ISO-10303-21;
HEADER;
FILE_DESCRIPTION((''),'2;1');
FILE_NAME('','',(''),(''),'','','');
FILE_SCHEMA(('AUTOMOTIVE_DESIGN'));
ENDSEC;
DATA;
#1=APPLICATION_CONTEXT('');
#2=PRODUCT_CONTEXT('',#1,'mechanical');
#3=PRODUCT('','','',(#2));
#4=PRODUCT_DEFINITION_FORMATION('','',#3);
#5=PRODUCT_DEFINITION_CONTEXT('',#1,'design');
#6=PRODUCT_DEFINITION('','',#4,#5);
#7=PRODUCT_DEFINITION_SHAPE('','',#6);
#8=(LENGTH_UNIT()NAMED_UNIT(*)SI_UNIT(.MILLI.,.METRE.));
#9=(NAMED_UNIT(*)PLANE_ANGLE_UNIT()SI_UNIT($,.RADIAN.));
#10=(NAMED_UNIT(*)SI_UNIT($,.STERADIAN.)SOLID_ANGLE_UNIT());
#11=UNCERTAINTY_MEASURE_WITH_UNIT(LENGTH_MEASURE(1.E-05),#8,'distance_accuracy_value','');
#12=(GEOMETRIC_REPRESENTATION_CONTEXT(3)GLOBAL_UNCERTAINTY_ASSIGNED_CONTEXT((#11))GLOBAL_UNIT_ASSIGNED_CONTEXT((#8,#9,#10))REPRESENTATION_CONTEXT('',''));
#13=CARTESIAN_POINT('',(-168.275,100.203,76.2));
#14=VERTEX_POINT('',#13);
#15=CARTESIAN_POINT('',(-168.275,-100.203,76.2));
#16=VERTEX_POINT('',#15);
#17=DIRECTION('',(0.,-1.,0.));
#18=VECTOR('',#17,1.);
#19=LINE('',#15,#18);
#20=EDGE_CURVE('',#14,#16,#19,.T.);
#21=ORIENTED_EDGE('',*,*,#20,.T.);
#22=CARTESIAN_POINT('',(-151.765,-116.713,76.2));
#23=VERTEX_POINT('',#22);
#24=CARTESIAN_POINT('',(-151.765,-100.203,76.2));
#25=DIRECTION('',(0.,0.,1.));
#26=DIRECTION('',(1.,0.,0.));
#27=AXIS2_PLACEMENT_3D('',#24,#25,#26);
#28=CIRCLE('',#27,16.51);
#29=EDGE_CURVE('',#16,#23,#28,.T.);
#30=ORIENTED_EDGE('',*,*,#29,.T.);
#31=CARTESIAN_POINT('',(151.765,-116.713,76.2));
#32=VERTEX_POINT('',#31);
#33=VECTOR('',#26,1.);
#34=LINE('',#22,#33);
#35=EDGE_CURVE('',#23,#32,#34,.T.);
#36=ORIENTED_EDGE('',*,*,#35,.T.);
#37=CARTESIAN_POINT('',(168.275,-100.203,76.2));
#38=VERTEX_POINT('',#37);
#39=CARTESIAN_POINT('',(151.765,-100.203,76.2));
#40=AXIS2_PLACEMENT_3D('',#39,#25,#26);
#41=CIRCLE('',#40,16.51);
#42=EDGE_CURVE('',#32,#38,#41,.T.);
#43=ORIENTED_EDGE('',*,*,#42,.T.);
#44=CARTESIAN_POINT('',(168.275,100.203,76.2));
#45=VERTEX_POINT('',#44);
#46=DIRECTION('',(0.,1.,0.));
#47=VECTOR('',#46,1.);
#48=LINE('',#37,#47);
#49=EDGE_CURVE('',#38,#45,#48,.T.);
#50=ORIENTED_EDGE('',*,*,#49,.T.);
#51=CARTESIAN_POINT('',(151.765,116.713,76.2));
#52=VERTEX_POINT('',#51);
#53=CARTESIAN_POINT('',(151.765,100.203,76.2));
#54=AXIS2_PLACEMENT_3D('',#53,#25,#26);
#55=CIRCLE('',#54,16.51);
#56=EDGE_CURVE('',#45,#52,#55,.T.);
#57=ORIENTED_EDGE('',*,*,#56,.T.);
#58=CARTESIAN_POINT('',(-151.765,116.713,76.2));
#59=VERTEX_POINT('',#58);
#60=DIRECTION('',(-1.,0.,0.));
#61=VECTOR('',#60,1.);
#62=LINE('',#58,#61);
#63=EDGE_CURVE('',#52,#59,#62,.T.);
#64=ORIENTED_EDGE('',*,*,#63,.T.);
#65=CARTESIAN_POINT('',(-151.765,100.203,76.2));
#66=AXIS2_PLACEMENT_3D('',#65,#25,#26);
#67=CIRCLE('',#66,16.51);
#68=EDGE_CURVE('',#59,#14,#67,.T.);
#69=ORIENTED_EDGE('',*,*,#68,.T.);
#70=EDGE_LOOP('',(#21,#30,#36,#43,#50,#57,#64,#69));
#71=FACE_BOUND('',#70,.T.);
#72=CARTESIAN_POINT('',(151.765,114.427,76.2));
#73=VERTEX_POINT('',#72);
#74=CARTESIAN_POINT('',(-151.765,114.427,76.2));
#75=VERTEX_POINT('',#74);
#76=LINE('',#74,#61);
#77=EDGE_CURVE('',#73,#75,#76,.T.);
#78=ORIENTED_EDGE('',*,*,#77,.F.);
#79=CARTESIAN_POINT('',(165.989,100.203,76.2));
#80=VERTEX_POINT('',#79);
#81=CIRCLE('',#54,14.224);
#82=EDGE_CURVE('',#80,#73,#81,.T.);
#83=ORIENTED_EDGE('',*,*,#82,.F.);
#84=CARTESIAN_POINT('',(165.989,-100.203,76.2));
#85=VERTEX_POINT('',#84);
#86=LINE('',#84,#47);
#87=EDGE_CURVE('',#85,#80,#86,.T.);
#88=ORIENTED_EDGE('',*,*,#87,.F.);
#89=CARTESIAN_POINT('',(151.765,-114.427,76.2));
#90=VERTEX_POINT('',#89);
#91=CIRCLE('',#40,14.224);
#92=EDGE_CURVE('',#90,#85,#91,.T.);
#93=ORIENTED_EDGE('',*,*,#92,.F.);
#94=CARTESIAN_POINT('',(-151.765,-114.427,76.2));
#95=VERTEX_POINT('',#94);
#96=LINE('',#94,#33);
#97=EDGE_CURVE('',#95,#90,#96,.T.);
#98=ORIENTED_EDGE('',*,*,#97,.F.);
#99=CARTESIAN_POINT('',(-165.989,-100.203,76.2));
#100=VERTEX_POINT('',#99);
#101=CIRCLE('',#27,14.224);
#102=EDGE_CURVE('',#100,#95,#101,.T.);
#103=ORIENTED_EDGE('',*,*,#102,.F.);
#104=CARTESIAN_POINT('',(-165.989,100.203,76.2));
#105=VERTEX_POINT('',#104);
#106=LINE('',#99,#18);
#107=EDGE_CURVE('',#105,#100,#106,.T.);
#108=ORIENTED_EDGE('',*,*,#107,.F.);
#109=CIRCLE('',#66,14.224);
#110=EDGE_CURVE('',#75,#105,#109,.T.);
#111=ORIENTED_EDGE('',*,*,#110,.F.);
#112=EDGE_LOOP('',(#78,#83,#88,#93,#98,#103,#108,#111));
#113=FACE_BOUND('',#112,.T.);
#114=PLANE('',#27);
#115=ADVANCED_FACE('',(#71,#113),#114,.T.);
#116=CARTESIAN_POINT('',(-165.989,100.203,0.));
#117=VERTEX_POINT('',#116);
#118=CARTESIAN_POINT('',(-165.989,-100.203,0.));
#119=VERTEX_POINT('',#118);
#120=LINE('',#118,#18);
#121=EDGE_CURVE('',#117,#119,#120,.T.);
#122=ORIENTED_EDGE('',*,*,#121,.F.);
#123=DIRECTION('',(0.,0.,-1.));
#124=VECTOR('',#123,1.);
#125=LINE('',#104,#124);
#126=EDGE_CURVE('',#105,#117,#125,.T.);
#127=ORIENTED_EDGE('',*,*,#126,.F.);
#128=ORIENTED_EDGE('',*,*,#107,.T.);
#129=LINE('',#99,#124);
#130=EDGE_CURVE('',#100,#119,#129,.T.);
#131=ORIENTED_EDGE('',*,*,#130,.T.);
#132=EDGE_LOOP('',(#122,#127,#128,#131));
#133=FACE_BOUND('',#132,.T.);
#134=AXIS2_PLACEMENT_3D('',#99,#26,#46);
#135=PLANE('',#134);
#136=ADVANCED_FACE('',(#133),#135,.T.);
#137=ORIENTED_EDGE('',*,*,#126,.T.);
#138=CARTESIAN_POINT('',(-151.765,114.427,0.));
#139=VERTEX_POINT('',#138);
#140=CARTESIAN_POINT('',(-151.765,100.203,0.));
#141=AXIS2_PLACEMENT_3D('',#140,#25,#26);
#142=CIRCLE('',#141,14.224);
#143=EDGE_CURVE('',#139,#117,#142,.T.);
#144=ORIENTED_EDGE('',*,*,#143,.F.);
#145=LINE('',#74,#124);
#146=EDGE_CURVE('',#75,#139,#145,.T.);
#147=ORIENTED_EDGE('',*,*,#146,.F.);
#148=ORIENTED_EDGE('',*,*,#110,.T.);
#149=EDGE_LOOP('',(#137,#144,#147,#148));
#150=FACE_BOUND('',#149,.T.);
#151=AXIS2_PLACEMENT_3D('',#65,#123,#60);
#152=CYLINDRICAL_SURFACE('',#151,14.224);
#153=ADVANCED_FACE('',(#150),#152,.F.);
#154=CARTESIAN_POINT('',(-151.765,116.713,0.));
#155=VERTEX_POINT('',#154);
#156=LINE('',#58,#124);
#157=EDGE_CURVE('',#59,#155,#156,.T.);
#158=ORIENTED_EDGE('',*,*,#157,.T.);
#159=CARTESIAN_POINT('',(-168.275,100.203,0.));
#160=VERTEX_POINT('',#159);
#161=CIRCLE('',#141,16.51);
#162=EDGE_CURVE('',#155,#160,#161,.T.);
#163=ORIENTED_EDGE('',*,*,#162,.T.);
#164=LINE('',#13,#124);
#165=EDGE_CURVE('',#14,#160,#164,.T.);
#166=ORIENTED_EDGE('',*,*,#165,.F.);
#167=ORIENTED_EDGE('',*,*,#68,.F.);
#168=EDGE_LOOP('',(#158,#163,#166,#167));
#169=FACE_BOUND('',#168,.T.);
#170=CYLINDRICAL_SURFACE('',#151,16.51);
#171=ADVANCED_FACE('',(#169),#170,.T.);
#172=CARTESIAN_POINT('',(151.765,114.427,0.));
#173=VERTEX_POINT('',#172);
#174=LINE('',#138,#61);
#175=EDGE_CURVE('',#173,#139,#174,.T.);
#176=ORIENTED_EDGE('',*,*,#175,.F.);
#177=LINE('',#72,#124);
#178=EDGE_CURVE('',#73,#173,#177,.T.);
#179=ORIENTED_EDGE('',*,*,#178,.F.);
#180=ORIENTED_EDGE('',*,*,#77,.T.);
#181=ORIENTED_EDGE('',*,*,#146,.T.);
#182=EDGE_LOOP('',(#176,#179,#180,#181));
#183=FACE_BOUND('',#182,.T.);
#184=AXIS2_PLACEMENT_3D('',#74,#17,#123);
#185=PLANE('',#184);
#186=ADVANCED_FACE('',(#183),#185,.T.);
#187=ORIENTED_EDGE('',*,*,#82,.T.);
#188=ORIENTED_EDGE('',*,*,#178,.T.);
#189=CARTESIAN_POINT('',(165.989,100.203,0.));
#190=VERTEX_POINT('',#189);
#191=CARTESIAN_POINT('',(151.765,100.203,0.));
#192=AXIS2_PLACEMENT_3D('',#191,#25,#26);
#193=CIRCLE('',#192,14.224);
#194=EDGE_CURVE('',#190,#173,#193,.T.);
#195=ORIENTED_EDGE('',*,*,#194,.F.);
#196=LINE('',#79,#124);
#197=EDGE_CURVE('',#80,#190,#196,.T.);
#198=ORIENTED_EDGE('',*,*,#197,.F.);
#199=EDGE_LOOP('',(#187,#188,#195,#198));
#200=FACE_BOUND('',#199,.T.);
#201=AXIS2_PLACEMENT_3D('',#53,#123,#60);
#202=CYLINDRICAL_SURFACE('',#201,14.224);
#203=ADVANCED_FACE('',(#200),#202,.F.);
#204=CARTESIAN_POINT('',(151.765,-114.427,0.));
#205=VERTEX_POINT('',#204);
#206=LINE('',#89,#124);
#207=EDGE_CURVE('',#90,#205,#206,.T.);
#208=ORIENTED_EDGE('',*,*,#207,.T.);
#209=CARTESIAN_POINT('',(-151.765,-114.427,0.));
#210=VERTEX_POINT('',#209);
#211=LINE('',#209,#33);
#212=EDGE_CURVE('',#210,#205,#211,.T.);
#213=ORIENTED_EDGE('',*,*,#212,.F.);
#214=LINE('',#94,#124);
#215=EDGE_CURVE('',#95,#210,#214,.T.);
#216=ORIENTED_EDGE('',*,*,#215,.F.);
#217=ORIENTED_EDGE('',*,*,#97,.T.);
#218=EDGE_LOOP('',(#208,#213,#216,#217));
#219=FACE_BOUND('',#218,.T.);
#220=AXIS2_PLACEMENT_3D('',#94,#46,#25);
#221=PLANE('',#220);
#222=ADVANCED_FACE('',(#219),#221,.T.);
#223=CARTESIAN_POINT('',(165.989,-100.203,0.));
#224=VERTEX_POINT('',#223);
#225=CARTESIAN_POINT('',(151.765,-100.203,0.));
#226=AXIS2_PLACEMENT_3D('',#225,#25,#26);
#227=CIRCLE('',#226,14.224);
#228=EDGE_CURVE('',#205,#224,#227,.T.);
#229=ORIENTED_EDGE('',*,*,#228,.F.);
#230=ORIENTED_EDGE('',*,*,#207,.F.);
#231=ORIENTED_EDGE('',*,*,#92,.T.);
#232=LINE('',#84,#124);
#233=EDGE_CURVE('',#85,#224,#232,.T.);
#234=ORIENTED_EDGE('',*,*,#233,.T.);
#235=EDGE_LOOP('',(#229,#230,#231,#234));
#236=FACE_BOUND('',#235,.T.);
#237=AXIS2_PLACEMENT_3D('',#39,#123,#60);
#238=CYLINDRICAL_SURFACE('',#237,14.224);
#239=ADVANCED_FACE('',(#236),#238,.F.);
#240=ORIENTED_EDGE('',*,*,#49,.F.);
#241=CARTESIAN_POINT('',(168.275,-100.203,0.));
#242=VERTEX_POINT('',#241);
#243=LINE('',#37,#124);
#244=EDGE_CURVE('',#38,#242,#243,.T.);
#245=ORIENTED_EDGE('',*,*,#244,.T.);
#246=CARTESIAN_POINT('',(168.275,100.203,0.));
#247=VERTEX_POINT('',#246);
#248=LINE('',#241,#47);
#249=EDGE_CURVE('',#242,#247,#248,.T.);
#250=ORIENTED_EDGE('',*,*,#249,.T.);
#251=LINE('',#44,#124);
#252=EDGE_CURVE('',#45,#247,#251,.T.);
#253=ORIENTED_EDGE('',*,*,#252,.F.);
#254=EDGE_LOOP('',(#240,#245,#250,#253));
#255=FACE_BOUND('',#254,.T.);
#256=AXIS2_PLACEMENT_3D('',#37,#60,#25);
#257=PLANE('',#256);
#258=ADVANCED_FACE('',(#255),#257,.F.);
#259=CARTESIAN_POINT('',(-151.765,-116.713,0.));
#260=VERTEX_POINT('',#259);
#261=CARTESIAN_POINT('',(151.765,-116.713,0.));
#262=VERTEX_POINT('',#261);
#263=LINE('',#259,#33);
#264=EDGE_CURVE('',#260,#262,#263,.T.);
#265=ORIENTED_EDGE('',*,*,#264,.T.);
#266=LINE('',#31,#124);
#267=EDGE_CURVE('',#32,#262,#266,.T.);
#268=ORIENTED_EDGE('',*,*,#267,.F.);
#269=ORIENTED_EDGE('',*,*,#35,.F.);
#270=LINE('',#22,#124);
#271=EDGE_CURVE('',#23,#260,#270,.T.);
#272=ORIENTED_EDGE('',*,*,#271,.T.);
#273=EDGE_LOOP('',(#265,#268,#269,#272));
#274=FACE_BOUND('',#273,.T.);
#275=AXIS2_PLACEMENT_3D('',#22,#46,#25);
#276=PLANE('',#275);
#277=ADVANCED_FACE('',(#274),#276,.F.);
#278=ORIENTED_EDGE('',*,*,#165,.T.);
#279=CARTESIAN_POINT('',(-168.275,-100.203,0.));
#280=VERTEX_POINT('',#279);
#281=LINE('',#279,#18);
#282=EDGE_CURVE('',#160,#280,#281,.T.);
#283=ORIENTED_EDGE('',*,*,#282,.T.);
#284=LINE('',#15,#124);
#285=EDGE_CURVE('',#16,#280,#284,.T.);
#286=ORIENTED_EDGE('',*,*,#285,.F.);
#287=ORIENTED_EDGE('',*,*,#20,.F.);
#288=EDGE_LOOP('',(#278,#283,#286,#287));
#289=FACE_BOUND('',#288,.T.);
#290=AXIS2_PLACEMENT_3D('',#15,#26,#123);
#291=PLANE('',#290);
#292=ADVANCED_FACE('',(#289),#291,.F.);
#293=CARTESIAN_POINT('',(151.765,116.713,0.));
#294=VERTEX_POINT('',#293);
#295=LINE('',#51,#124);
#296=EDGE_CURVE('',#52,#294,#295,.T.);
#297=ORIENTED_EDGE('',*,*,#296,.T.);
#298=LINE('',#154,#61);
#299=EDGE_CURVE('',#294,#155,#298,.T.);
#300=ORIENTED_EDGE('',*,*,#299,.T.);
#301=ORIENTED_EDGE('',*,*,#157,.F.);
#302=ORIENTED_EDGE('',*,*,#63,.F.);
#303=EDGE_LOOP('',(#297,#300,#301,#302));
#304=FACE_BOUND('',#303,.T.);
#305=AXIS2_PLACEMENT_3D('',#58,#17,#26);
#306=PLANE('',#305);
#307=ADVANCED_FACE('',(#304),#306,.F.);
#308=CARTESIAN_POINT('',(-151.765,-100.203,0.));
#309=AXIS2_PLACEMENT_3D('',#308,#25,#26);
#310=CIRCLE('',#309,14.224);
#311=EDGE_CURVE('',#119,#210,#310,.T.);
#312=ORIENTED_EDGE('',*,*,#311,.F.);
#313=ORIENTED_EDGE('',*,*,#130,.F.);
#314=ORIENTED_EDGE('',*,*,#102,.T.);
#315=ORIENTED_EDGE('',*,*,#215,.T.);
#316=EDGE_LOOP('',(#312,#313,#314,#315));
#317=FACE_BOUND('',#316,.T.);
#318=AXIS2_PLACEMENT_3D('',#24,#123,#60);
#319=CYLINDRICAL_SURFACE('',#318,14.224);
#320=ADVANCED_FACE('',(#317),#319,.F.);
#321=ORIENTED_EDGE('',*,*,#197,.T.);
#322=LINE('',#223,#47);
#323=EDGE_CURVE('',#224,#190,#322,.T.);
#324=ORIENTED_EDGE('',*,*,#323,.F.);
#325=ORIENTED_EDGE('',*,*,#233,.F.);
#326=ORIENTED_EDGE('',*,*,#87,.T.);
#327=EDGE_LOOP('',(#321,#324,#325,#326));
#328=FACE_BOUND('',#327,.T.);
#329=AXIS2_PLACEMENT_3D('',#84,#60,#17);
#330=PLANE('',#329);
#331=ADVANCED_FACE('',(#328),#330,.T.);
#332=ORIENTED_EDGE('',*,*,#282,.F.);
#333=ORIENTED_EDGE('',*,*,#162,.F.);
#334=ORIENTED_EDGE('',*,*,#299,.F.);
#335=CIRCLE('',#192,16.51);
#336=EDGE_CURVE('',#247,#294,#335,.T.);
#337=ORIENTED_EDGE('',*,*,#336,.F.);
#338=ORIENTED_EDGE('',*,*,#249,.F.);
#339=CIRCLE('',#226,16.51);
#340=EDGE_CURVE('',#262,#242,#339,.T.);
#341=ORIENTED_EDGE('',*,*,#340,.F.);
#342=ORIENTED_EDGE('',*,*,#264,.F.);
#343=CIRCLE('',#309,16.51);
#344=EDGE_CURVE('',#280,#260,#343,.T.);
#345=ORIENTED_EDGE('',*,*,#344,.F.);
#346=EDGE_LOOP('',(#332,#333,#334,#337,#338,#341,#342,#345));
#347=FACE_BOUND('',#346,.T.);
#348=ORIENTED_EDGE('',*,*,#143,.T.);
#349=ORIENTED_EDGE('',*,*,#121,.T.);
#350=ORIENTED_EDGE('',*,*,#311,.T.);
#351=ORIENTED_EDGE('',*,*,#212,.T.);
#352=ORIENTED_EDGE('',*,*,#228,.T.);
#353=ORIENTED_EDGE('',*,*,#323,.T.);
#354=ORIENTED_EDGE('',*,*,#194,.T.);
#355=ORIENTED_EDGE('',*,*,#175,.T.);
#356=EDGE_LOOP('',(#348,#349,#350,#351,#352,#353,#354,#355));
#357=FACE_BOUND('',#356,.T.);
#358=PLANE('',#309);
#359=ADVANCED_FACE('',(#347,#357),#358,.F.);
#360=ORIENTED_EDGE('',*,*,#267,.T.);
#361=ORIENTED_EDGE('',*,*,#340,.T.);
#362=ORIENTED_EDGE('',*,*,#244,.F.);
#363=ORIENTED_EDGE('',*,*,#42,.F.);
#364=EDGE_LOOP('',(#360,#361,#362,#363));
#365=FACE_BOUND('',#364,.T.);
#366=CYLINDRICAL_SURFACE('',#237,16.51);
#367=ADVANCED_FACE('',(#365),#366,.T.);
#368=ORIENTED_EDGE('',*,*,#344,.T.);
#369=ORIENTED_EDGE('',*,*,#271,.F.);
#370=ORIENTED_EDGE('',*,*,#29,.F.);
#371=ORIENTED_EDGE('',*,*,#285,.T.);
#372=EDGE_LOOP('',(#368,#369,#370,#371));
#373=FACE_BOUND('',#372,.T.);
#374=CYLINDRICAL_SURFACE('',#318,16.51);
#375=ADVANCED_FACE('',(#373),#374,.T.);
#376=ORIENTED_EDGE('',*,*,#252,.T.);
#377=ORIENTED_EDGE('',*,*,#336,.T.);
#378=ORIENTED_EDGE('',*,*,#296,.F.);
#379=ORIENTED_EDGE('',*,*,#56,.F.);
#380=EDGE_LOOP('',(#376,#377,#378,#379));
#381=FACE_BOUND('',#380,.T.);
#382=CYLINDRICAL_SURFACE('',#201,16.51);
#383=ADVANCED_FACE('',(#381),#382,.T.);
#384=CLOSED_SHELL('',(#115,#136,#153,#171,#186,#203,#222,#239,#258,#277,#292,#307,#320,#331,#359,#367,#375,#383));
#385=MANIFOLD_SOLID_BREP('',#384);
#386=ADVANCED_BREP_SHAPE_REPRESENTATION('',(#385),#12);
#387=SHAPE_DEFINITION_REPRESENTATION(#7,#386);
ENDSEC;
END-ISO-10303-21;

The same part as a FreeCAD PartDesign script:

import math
import FreeCAD as App
import Part
import Sketcher

V = App.Vector
Q = App.Units.Quantity

doc = App.newDocument("Part")
body = doc.addObject("PartDesign::Body", "Body")

# Sketch on XY plane
sketch1 = body.newObject("Sketcher::SketchObject", "Sketch")
sketch1.AttachmentSupport = (doc.getObject("XY_Plane"), [""])
sketch1.MapMode = "FlatFace"
sketch1.addGeometry([
    Part.LineSegment(V(-152, -117, 0), V(152, -117, 0)),  # 0
    Part.ArcOfCircle(Part.Circle(V(152, -100, 0), V(0, 0, 1), 17), math.radians(-90), math.radians(0)),  # 1
    Part.LineSegment(V(168, -100, 0), V(168, 100, 0)),  # 2
    Part.ArcOfCircle(Part.Circle(V(152, 100, 0), V(0, 0, 1), 17), math.radians(0), math.radians(90)),  # 3
    Part.LineSegment(V(152, 117, 0), V(-152, 117, 0)),  # 4
    Part.ArcOfCircle(Part.Circle(V(-152, 100, 0), V(0, 0, 1), 17), math.radians(90), math.radians(180)),  # 5
    Part.LineSegment(V(-168, 100, 0), V(-168, -100, 0)),  # 6
    Part.ArcOfCircle(Part.Circle(V(-152, -100, 0), V(0, 0, 1), 17), math.radians(-180), math.radians(-90)),  # 7
    Part.LineSegment(V(152, -114, 0), V(-152, -114, 0)),  # 8
    Part.ArcOfCircle(Part.Circle(V(-152, -100, 0), V(0, 0, 1), 14), math.radians(180), math.radians(270)),  # 9
    Part.LineSegment(V(-166, -100, 0), V(-166, 100, 0)),  # 10
    Part.ArcOfCircle(Part.Circle(V(-152, 100, 0), V(0, 0, 1), 14), math.radians(90), math.radians(180)),  # 11
    Part.LineSegment(V(-152, 114, 0), V(152, 114, 0)),  # 12
    Part.ArcOfCircle(Part.Circle(V(152, 100, 0), V(0, 0, 1), 14), math.radians(0), math.radians(90)),  # 13
    Part.LineSegment(V(166, 100, 0), V(166, -100, 0)),  # 14
    Part.ArcOfCircle(Part.Circle(V(152, -100, 0), V(0, 0, 1), 14), math.radians(-90), math.radians(0)),  # 15
], False)
sketch1.addConstraint([
    Sketcher.Constraint("Tangent", 0, 2, 1, 1),
    Sketcher.Constraint("Tangent", 1, 2, 2, 1),
    Sketcher.Constraint("Tangent", 2, 2, 3, 1),
    Sketcher.Constraint("Tangent", 3, 2, 4, 1),
    Sketcher.Constraint("Tangent", 4, 2, 5, 1),
    Sketcher.Constraint("Tangent", 5, 2, 6, 1),
    Sketcher.Constraint("Tangent", 6, 2, 7, 1),
    Sketcher.Constraint("Tangent", 7, 2, 0, 1),
    Sketcher.Constraint("Tangent", 8, 2, 9, 2),
    Sketcher.Constraint("Tangent", 9, 1, 10, 1),
    Sketcher.Constraint("Tangent", 10, 2, 11, 2),
    Sketcher.Constraint("Tangent", 11, 1, 12, 1),
    Sketcher.Constraint("Tangent", 12, 2, 13, 2),
    Sketcher.Constraint("Tangent", 13, 1, 14, 1),
    Sketcher.Constraint("Tangent", 14, 2, 15, 2),
    Sketcher.Constraint("Tangent", 15, 1, 8, 1),
    Sketcher.Constraint("Horizontal", 0),
    Sketcher.Constraint("Vertical", 2),
    Sketcher.Constraint("Horizontal", 4),
    Sketcher.Constraint("Vertical", 6),
    Sketcher.Constraint("Horizontal", 8),
    Sketcher.Constraint("Vertical", 10),
    Sketcher.Constraint("Horizontal", 12),
    Sketcher.Constraint("Vertical", 14),
    Sketcher.Constraint("Coincident", 9, 3, 7, 3),
    Sketcher.Constraint("Coincident", 11, 3, 5, 3),
    Sketcher.Constraint("Coincident", 13, 3, 3, 3),
    Sketcher.Constraint("Equal", 1, 3),
    Sketcher.Constraint("Equal", 3, 5),
    Sketcher.Constraint("Equal", 5, 7),
    Sketcher.Constraint("Equal", 13, 15),
    Sketcher.Constraint("Symmetric", 1, 3, 5, 3, -1, 1),
    Sketcher.Constraint("Radius", 1, Q("0.65 in")),
    Sketcher.Constraint("Radius", 9, Q("0.56 in")),
    Sketcher.Constraint("DistanceX", 0, 1, 0, 2, Q("11.95 in")),
    Sketcher.Constraint("DistanceY", 2, 1, 2, 2, Q("7.89 in")),
])
pad1 = body.newObject("PartDesign::Pad", "Pad")
pad1.Profile = sketch1
pad1.Length = Q("3 in")

doc.recompute()
